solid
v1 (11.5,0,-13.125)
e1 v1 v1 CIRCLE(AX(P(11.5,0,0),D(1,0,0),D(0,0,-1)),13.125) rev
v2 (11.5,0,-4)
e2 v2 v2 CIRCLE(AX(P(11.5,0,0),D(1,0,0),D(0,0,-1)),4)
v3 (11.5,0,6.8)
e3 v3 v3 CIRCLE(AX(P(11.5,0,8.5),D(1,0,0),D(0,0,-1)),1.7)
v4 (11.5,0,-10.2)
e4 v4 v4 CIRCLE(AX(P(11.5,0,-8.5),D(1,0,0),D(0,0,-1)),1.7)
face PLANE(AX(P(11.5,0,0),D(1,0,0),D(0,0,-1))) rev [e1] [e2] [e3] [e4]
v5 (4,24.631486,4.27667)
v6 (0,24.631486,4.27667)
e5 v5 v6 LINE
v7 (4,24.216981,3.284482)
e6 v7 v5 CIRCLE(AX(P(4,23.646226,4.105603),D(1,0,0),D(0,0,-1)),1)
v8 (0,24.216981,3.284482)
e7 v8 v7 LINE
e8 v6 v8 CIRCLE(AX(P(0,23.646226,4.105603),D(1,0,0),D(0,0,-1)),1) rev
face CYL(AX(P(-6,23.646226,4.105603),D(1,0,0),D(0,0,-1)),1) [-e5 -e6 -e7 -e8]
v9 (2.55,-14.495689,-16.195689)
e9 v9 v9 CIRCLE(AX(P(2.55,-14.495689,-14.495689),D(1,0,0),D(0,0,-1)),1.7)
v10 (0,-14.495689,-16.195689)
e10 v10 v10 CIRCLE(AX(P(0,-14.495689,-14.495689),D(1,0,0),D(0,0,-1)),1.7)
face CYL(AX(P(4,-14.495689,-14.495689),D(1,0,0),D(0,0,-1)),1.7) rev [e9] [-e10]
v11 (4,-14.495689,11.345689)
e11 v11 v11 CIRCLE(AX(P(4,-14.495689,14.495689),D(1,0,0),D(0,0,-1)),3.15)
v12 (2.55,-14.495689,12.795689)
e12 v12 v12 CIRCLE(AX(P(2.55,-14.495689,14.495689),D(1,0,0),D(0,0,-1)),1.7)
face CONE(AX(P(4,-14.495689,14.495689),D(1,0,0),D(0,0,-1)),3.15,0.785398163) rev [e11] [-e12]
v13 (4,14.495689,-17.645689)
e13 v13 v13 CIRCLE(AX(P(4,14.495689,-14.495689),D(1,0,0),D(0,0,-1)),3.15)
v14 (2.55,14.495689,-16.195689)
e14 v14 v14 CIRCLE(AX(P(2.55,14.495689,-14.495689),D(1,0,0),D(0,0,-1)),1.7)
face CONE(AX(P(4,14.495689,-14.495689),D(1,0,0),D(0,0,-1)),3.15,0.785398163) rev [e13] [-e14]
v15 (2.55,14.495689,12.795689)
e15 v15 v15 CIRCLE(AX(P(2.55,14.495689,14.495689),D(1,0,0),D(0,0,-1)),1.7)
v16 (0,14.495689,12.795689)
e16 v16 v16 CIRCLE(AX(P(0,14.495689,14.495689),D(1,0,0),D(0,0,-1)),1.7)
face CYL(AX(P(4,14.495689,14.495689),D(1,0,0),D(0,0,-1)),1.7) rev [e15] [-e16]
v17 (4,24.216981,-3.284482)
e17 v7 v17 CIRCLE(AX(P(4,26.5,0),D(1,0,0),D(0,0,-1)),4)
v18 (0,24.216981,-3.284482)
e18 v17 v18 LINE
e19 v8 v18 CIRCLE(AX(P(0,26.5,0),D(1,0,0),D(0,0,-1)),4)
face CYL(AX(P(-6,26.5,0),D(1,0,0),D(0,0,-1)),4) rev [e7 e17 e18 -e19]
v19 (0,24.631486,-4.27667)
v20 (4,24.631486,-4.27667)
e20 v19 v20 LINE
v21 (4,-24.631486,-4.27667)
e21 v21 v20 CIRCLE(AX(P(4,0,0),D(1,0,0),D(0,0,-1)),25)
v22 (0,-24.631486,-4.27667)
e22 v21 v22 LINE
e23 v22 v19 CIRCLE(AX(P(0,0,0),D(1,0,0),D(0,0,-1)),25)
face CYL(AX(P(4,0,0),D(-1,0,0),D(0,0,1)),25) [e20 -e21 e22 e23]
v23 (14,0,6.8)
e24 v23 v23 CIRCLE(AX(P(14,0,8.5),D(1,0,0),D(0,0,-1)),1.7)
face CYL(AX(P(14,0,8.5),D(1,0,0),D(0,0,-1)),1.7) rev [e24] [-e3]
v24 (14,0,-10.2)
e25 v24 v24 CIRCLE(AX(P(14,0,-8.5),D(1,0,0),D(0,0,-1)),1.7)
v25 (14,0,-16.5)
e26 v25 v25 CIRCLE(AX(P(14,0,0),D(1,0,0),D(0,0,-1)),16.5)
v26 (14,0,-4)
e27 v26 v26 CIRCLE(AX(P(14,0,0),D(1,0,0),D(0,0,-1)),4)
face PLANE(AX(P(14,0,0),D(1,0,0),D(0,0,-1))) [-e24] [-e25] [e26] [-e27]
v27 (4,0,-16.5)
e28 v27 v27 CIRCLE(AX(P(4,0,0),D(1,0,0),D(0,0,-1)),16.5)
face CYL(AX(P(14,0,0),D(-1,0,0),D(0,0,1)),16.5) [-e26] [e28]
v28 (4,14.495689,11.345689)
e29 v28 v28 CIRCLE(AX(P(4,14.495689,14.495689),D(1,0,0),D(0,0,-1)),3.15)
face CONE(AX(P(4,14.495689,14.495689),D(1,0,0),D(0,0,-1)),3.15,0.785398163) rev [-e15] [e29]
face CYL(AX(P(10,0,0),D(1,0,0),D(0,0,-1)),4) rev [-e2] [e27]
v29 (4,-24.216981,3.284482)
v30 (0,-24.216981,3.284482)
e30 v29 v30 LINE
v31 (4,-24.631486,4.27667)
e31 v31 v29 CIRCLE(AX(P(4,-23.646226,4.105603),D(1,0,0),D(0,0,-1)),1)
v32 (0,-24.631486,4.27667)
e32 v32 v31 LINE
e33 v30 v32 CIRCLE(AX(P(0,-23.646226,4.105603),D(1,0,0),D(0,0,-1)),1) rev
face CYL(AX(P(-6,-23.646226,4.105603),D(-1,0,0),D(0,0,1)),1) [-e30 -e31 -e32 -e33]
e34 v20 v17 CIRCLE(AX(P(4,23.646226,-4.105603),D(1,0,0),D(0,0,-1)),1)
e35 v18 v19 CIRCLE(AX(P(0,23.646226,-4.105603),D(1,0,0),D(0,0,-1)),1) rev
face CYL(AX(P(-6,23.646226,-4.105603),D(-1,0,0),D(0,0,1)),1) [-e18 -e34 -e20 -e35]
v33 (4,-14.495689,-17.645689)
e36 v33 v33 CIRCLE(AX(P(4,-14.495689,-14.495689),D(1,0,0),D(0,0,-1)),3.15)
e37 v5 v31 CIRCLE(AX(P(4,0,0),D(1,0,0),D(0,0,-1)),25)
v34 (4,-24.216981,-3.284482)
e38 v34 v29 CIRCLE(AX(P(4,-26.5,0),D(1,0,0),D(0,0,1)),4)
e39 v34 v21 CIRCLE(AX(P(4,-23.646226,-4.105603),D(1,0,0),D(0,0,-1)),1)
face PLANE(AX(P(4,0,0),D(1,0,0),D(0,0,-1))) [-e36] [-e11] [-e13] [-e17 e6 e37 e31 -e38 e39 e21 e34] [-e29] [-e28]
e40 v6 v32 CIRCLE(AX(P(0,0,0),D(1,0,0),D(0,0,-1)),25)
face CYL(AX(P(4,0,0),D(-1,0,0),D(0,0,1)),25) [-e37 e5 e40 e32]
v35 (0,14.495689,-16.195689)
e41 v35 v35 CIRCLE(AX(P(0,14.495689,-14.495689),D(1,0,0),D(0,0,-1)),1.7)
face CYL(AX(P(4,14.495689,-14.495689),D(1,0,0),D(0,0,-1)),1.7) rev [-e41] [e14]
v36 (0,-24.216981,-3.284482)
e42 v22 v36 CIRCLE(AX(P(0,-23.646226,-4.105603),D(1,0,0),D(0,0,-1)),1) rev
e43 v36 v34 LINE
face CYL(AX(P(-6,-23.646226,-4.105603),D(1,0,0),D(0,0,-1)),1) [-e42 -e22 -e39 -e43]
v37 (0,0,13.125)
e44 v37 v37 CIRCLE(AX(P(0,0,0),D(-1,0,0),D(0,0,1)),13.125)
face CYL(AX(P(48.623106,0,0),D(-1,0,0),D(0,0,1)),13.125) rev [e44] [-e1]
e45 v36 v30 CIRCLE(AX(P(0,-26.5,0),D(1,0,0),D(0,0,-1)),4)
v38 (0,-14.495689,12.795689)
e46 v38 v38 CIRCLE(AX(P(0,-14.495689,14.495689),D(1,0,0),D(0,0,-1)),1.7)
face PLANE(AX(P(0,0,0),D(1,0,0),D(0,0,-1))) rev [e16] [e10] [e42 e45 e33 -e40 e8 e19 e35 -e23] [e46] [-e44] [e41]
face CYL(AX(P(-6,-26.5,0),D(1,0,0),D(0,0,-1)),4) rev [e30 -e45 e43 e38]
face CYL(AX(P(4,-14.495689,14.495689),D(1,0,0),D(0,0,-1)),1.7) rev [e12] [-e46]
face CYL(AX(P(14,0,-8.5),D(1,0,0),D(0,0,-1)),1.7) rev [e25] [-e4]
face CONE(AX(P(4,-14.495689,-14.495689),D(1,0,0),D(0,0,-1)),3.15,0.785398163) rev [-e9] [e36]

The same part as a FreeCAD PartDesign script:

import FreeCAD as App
import Part
import Sketcher
from FreeCAD import Vector


def edges_at(feature, points):
    """Names of the edges that pass closest to the given points."""
    edges = feature.Shape.Edges
    near = lambda p: min(range(len(edges)), key=lambda i: edges[i].distToShape(Part.Vertex(*p))[0])
    return sorted({f"Edge{near(p) + 1}" for p in points})

doc = App.newDocument("Part")
body = doc.addObject("PartDesign::Body", "Body")

sketch1 = doc.addObject("Sketcher::SketchObject", "Sketch")
body.addObject(sketch1)
sketch1.AttachmentSupport = (doc.YZ_Plane, [""])
sketch1.MapMode = "FlatFace"
sketch1.addGeometry(Part.Circle(Vector(0, 0, 0), Vector(0, 0, 1), 25), False)
sketch1.addConstraint([
    Sketcher.Constraint("Coincident", 0, 3, -1, 1),
    Sketcher.Constraint("Diameter", 0, 50.0),
])
pad1 = doc.addObject("PartDesign::Pad", "Pad")
body.addObject(pad1)
pad1.Profile = sketch1
pad1.Length = 4

sketch2 = doc.addObject("Sketcher::SketchObject", "Sketch001")
body.addObject(sketch2)
sketch2.AttachmentSupport = (doc.YZ_Plane, [""])
sketch2.MapMode = "FlatFace"
sketch2.AttachmentOffset = App.Placement(Vector(0, 0, 4), App.Rotation())
sketch2.addGeometry(Part.Circle(Vector(0, 0, 0), Vector(0, 0, 1), 16), False)
sketch2.addConstraint([
    Sketcher.Constraint("Coincident", 0, 3, -1, 1),
    Sketcher.Constraint("Diameter", 0, 33.0),
])
pad2 = doc.addObject("PartDesign::Pad", "Pad001")
body.addObject(pad2)
pad2.Profile = sketch2
pad2.Length = 10

sketch3 = doc.addObject("Sketcher::SketchObject", "Sketch002")
body.addObject(sketch3)
sketch3.AttachmentSupport = (doc.YZ_Plane, [""])
sketch3.MapMode = "FlatFace"
sketch3.addGeometry(Part.Circle(Vector(0, 0, 0), Vector(0, 0, 1), 12), False)
sketch3.addConstraint([
    Sketcher.Constraint("Coincident", 0, 3, -1, 1),
    Sketcher.Constraint("Diameter", 0, 25.0),
])
pocket1 = doc.addObject("PartDesign::Pocket", "Pocket")
body.addObject(pocket1)
pocket1.Profile = sketch3
pocket1.Length = 11.5
pocket1.Reversed = True

sketch4 = doc.addObject("Sketcher::SketchObject", "Sketch003")
body.addObject(sketch4)
sketch4.AttachmentSupport = (doc.YZ_Plane, [""])
sketch4.MapMode = "FlatFace"
sketch4.AttachmentOffset = App.Placement(Vector(0, 0, 14), App.Rotation())
sketch4.addGeometry(Part.Circle(Vector(0, 0, 0), Vector(0, 0, 1), 4), False)
sketch4.addConstraint([
    Sketcher.Constraint("Coincident", 0, 3, -1, 1),
    Sketcher.Constraint("Diameter", 0, 8.0),
])
pocket2 = doc.addObject("PartDesign::Pocket", "Pocket001")
body.addObject(pocket2)
pocket2.Profile = sketch4
pocket2.Length = 4

sketch5 = doc.addObject("Sketcher::SketchObject", "Sketch004")
body.addObject(sketch5)
sketch5.AttachmentSupport = (doc.YZ_Plane, [""])
sketch5.MapMode = "FlatFace"
sketch5.AttachmentOffset = App.Placement(Vector(0, 0, 14), App.Rotation())
sketch5.addGeometry([
    Part.Circle(Vector(0, -8.5, 0), Vector(0, 0, 1), 1.7),
    Part.Circle(Vector(0, 8.5, 0), Vector(0, 0, 1), 1.7),
], False)
sketch5.addConstraint([
    Sketcher.Constraint("Equal", 0, 1),
    Sketcher.Constraint("Symmetric", 0, 3, 1, 3, -1, 1),
    Sketcher.Constraint("PointOnObject", 0, 3, -2),
    Sketcher.Constraint("Diameter", 0, 3.4),
    Sketcher.Constraint("DistanceY", 0, 3, 1, 3, 17.0),
])
doc.recompute()
hole = doc.addObject("PartDesign::Hole", "Hole")
body.addObject(hole)
hole.Profile = sketch5
hole.ThreadType = "None"
hole.Diameter = 3.4
hole.DepthType = "Dimension"
hole.Depth = 10
hole.DrillPoint = "Flat"

sketch6 = doc.addObject("Sketcher::SketchObject", "Sketch005")
body.addObject(sketch6)
sketch6.AttachmentSupport = (doc.YZ_Plane, [""])
sketch6.MapMode = "FlatFace"
sketch6.AttachmentOffset = App.Placement(Vector(0, 0, 4), App.Rotation())
sketch6.addGeometry(Part.Circle(Vector(-14.5, 14.5, 0), Vector(0, 0, 1), 1.7), False)
sketch6.addConstraint([
    Sketcher.Constraint("Diameter", 0, 3.4),
    Sketcher.Constraint("DistanceX", 0, 3, -1, 1, 14.495689),
    Sketcher.Constraint("DistanceY", -1, 1, 0, 3, 14.495689),
])
doc.recompute()
hole2 = doc.addObject("PartDesign::Hole", "Hole001")
body.addObject(hole2)
hole2.Profile = sketch6
hole2.ThreadType = "None"
hole2.Diameter = 3.4
hole2.DepthType = "ThroughAll"
hole2.HoleCutType = "Countersink"
hole2.HoleCutDiameter = 6.3
hole2.HoleCutCountersinkAngle = 90
doc.recompute()

polarpattern = doc.addObject("PartDesign::PolarPattern", "PolarPattern")
body.addObject(polarpattern)
polarpattern.Originals = [hole2]
polarpattern.Axis = (doc.X_Axis, [""])
polarpattern.Angle = 360
polarpattern.Occurrences = 4
body.Tip = polarpattern

sketch7 = doc.addObject("Sketcher::SketchObject", "Sketch006")
body.addObject(sketch7)
sketch7.AttachmentSupport = (doc.YZ_Plane, [""])
sketch7.MapMode = "FlatFace"
sketch7.addGeometry(Part.Circle(Vector(0, 0, 0), Vector(0, 0, 1), 13), False)
sketch7.addConstraint([
    Sketcher.Constraint("Coincident", 0, 3, -1, 1),
    Sketcher.Constraint("Diameter", 0, 26.25),
])
pocket3 = doc.addObject("PartDesign::Pocket", "Pocket002")
body.addObject(pocket3)
pocket3.Profile = sketch7
pocket3.Length = 11.5
pocket3.Reversed = True

sketch8 = doc.addObject("Sketcher::SketchObject", "Sketch007")
body.addObject(sketch8)
sketch8.AttachmentSupport = (doc.YZ_Plane, [""])
sketch8.MapMode = "FlatFace"
sketch8.AttachmentOffset = App.Placement(Vector(0, 0, 4), App.Rotation())
sketch8.addGeometry([
    Part.Circle(Vector(26.5, 0, 0), Vector(0, 0, 1), 4),
    Part.Circle(Vector(-26.5, 0, 0), Vector(0, 0, 1), 4),
], False)
sketch8.addConstraint([
    Sketcher.Constraint("Equal", 0, 1),
    Sketcher.Constraint("Symmetric", 0, 3, 1, 3, -1, 1),
    Sketcher.Constraint("PointOnObject", 0, 3, -1),
    Sketcher.Constraint("Diameter", 0, 8.0),
    Sketcher.Constraint("DistanceX", 1, 3, 0, 3, 53.0),
])
pocket4 = doc.addObject("PartDesign::Pocket", "Pocket003")
body.addObject(pocket4)
pocket4.Profile = sketch8
pocket4.Length = 10
doc.recompute()

fillet = doc.addObject("PartDesign::Fillet", "Fillet")
body.addObject(fillet)
fillet.Base = (pocket4, edges_at(pocket4, [
    (2, 24.741, -3.592),
    (2, 24.741, 3.592),
    (2, -24.741, 3.592),
    (2, -24.741, -3.592),
]))
fillet.Radius = 1

doc.recompute()
